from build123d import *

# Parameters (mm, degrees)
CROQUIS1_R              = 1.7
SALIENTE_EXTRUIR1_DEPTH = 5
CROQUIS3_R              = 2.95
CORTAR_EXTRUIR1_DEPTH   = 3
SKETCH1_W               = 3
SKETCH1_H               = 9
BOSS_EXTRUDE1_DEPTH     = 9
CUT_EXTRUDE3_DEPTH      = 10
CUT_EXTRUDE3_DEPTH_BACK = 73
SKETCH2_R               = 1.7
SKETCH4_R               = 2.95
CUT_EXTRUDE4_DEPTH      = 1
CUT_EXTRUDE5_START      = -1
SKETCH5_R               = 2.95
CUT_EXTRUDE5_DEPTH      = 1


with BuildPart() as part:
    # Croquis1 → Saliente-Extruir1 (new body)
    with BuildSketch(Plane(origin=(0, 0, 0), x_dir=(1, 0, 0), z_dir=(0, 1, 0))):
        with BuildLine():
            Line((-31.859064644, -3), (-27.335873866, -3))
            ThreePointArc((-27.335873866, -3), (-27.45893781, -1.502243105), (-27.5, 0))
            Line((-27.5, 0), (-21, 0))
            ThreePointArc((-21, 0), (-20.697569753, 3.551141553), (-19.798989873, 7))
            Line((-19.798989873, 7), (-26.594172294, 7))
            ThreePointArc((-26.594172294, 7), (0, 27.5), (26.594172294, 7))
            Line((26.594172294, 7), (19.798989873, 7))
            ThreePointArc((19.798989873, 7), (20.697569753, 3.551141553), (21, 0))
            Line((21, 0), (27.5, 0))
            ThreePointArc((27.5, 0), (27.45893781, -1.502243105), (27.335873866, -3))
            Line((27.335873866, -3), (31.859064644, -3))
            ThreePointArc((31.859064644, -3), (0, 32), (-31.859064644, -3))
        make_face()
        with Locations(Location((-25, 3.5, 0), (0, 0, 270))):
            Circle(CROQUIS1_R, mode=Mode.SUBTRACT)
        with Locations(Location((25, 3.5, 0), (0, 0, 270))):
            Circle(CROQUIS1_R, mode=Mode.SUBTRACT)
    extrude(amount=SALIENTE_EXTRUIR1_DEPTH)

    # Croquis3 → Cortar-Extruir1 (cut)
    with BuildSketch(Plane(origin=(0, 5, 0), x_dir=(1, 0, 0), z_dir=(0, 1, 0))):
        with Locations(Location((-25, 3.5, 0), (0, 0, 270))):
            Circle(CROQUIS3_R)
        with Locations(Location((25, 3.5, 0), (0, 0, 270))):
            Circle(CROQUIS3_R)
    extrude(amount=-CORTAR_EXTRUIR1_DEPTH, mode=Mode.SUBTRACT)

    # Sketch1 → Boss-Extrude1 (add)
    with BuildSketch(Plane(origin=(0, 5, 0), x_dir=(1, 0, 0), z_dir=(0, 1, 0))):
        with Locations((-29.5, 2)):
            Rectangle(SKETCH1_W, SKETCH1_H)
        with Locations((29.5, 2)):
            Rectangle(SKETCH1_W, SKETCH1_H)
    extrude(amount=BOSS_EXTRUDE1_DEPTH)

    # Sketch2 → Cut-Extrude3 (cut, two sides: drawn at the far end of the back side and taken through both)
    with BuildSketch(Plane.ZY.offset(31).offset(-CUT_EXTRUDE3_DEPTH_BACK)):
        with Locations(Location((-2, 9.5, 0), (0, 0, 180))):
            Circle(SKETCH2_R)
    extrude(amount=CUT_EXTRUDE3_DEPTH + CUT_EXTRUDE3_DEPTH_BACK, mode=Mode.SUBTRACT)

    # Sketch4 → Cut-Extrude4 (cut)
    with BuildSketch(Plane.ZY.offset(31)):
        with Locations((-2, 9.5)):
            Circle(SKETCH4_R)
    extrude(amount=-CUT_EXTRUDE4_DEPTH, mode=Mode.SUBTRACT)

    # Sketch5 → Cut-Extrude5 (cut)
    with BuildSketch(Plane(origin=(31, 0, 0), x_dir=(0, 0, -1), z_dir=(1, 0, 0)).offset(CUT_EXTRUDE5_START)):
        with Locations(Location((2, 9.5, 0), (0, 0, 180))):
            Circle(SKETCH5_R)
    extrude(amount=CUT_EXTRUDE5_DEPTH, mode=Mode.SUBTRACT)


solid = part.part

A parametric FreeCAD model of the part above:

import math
import FreeCAD as App
import Part
import Sketcher
from FreeCAD import Vector
Q = App.Units.Quantity


def add_polygon(sketch, points):
    """Adds a closed chain of lines whose ends are joined by coincident constraints."""
    first, n = sketch.GeometryCount, len(points)
    for a, b in zip(points, points[1:] + points[:1]):
        sketch.addGeometry(Part.LineSegment(App.Vector(*a, 0), App.Vector(*b, 0)), False)
    for i in range(n):
        sketch.addConstraint(Sketcher.Constraint("Coincident", first + i, 2, first + (i + 1) % n, 1))

doc = App.newDocument("Part")
body = doc.addObject("PartDesign::Body", "Body")

# Sketch on XZ plane
sketch1 = doc.addObject("Sketcher::SketchObject", "Sketch")
body.addObject(sketch1)
sketch1.AttachmentSupport = (doc.XZ_Plane, [""])
sketch1.MapMode = "FlatFace"
sketch1.addGeometry([
    Part.LineSegment(Vector(-31.9, 3, 0), Vector(-27.3, 3, 0)),  # 0
    Part.ArcOfCircle(Part.Circle(Vector(0, 0, 0), Vector(0, 0, 1), 27.5), math.radians(173.74), math.radians(180)),  # 1
    Part.LineSegment(Vector(-27.5, 0, 0), Vector(-21, 0, 0)),  # 2
    Part.ArcOfCircle(Part.Circle(Vector(0, 0, 0), Vector(0, 0, 1), 21), math.radians(180), math.radians(199.47)),  # 3
    Part.LineSegment(Vector(-19.8, -7, 0), Vector(-26.6, -7, 0)),  # 4
    Part.ArcOfCircle(Part.Circle(Vector(0, 0, 0), Vector(0, 0, 1), 27.5), math.radians(-165), math.radians(-15)),  # 5
    Part.LineSegment(Vector(26.6, -7, 0), Vector(19.8, -7, 0)),  # 6
    Part.ArcOfCircle(Part.Circle(Vector(0, 0, 0), Vector(0, 0, 1), 21), math.radians(-19.47), math.radians(0)),  # 7
    Part.LineSegment(Vector(21, 0, 0), Vector(27.5, 0, 0)),  # 8
    Part.ArcOfCircle(Part.Circle(Vector(0, 0, 0), Vector(0, 0, 1), 27.5), math.radians(0), math.radians(6.26)),  # 9
    Part.LineSegment(Vector(27.3, 3, 0), Vector(31.9, 3, 0)),  # 10
    Part.ArcOfCircle(Part.Circle(Vector(0, 0, 0), Vector(0, 0, 1), 32), math.radians(175), math.radians(365)),  # 11
    Part.Circle(Vector(-25, -3.5, 0), Vector(0, 0, 1), 1.7),  # 12
    Part.Circle(Vector(25, -3.5, 0), Vector(0, 0, 1), 1.7),  # 13
], False)
sketch1.addConstraint([
    Sketcher.Constraint("Coincident", 0, 2, 1, 1),
    Sketcher.Constraint("Coincident", 1, 2, 2, 1),
    Sketcher.Constraint("Coincident", 2, 2, 3, 1),
    Sketcher.Constraint("Coincident", 3, 2, 4, 1),
    Sketcher.Constraint("Coincident", 4, 2, 5, 1),
    Sketcher.Constraint("Coincident", 5, 2, 6, 1),
    Sketcher.Constraint("Coincident", 6, 2, 7, 1),
    Sketcher.Constraint("Coincident", 7, 2, 8, 1),
    Sketcher.Constraint("Coincident", 8, 2, 9, 1),
    Sketcher.Constraint("Coincident", 9, 2, 10, 1),
    Sketcher.Constraint("Coincident", 10, 2, 11, 2),
    Sketcher.Constraint("Coincident", 11, 1, 0, 1),
    Sketcher.Constraint("Horizontal", 0),
    Sketcher.Constraint("Horizontal", 2),
    Sketcher.Constraint("Horizontal", 4),
    Sketcher.Constraint("Horizontal", 6),
    Sketcher.Constraint("Horizontal", 8),
    Sketcher.Constraint("Horizontal", 10),
    Sketcher.Constraint("Coincident", 1, 3, -1, 1),
    Sketcher.Constraint("Coincident", 3, 3, -1, 1),
    Sketcher.Constraint("Coincident", 5, 3, -1, 1),
    Sketcher.Constraint("Coincident", 7, 3, -1, 1),
    Sketcher.Constraint("Coincident", 9, 3, -1, 1),
    Sketcher.Constraint("Coincident", 11, 3, -1, 1),
    Sketcher.Constraint("Equal", 1, 5),
    Sketcher.Constraint("Equal", 3, 7),
    Sketcher.Constraint("Equal", 5, 9),
    Sketcher.Constraint("Equal", 12, 13),
    Sketcher.Constraint("Symmetric", 12, 3, 13, 3, -2),
    Sketcher.Constraint("PointOnObject", 1, 2, -1),
    Sketcher.Constraint("PointOnObject", 7, 2, -1),
    Sketcher.Constraint("Horizontal", 4, 2, 5, 2),
    Sketcher.Constraint("Horizontal", 0, 2, 9, 2),
    Sketcher.Constraint("Radius", 3, Q("21 mm")),
    Sketcher.Constraint("Radius", 11, Q("32 mm")),
    Sketcher.Constraint("Diameter", 12, Q("3.4 mm")),
    Sketcher.Constraint("Radius", 1, Q("27.5 mm")),
    Sketcher.Constraint("DistanceX", 12, 3, -1, 1, Q("25 mm")),
    Sketcher.Constraint("DistanceY", -1, 1, 0, 2, Q("3 mm")),
    Sketcher.Constraint("DistanceY", 3, 2, -1, 1, Q("7 mm")),
    Sketcher.Constraint("DistanceY", 12, 3, -1, 1, Q("3.5 mm")),
])
pad1 = doc.addObject("PartDesign::Pad", "Pad")
body.addObject(pad1)
pad1.Profile = sketch1
pad1.Length = 5
pad1.Reversed = True

# Sketch on XZ plane
sketch2 = doc.addObject("Sketcher::SketchObject", "Sketch001")
body.addObject(sketch2)
sketch2.AttachmentSupport = (doc.XZ_Plane, [""])
sketch2.MapMode = "FlatFace"
sketch2.AttachmentOffset = App.Placement(Vector(0, 0, -5), App.Rotation())
sketch2.addGeometry([
    Part.Circle(Vector(-25, -3.5, 0), Vector(0, 0, 1), 3),
    Part.Circle(Vector(25, -3.5, 0), Vector(0, 0, 1), 3),
], False)
sketch2.addConstraint([
    Sketcher.Constraint("Equal", 0, 1),
    Sketcher.Constraint("Symmetric", 0, 3, 1, 3, -2),
    Sketcher.Constraint("Diameter", 0, Q("5.9 mm")),
    Sketcher.Constraint("DistanceX", 0, 3, -1, 1, Q("25 mm")),
    Sketcher.Constraint("DistanceY", 0, 3, -1, 1, Q("3.5 mm")),
])
pocket1 = doc.addObject("PartDesign::Pocket", "Pocket")
body.addObject(pocket1)
pocket1.Profile = sketch2
pocket1.Length = 3
pocket1.Reversed = True

# Sketch on XZ plane
sketch3 = doc.addObject("Sketcher::SketchObject", "Sketch002")
body.addObject(sketch3)
sketch3.AttachmentSupport = (doc.XZ_Plane, [""])
sketch3.MapMode = "FlatFace"
sketch3.AttachmentOffset = App.Placement(Vector(0, 0, -5), App.Rotation())
add_polygon(sketch3, [(-31, -6.5), (-31, 2.5), (-28, 2.5), (-28, -6.5)])  # lines 0-3
add_polygon(sketch3, [(28, -6.5), (28, 2.5), (31, 2.5), (31, -6.5)])  # lines 4-7
sketch3.addConstraint([
    Sketcher.Constraint("Vertical", 0),
    Sketcher.Constraint("Horizontal", 1),
    Sketcher.Constraint("Vertical", 2),
    Sketcher.Constraint("Horizontal", 3),
    Sketcher.Constraint("Vertical", 4),
    Sketcher.Constraint("Horizontal", 5),
    Sketcher.Constraint("Vertical", 6),
    Sketcher.Constraint("Horizontal", 7),
    Sketcher.Constraint("Symmetric", 1, 2, 4, 2, -2),
    Sketcher.Constraint("Symmetric", 3, 2, 6, 2, -2),
    Sketcher.Constraint("DistanceX", 1, 1, 1, 2, Q("3 mm")),
    Sketcher.Constraint("DistanceY", 0, 1, 0, 2, Q("9 mm")),
    Sketcher.Constraint("DistanceX", 0, 2, -1, 1, Q("31 mm")),
    Sketcher.Constraint("DistanceY", -1, 1, 0, 2, Q("2.5 mm")),
])
pad2 = doc.addObject("PartDesign::Pad", "Pad001")
body.addObject(pad2)
pad2.Profile = sketch3
pad2.Length = 9
pad2.Reversed = True

# Sketch on YZ plane
sketch4 = doc.addObject("Sketcher::SketchObject", "Sketch003")
body.addObject(sketch4)
sketch4.AttachmentSupport = (doc.YZ_Plane, [""])
sketch4.MapMode = "FlatFace"
sketch4.AttachmentOffset = App.Placement(Vector(0, 0, -31), App.Rotation())
sketch4.addGeometry(Part.Circle(Vector(9.5, -2, 0), Vector(0, 0, 1), 1.7), False)
sketch4.addConstraint([
    Sketcher.Constraint("Diameter", 0, Q("3.4 mm")),
    Sketcher.Constraint("DistanceY", 0, 3, -1, 1, Q("2 mm")),
    Sketcher.Constraint("DistanceX", -1, 1, 0, 3, Q("9.5 mm")),
])
pocket2 = doc.addObject("PartDesign::Pocket", "Pocket001")
body.addObject(pocket2)
pocket2.Profile = sketch4
pocket2.Type = "ThroughAll"
pocket2.Midplane = True

# Sketch on YZ plane
sketch5 = doc.addObject("Sketcher::SketchObject", "Sketch004")
body.addObject(sketch5)
sketch5.AttachmentSupport = (doc.YZ_Plane, [""])
sketch5.MapMode = "FlatFace"
sketch5.AttachmentOffset = App.Placement(Vector(0, 0, -31), App.Rotation())
sketch5.addGeometry(Part.Circle(Vector(9.5, -2, 0), Vector(0, 0, 1), 3), False)
sketch5.addConstraint([
    Sketcher.Constraint("Diameter", 0, Q("5.9 mm")),
    Sketcher.Constraint("DistanceY", 0, 3, -1, 1, Q("2 mm")),
    Sketcher.Constraint("DistanceX", -1, 1, 0, 3, Q("9.5 mm")),
])
pocket3 = doc.addObject("PartDesign::Pocket", "Pocket002")
body.addObject(pocket3)
pocket3.Profile = sketch5
pocket3.Length = 1
pocket3.Reversed = True

# Sketch on YZ plane
sketch6 = doc.addObject("Sketcher::SketchObject", "Sketch005")
body.addObject(sketch6)
sketch6.AttachmentSupport = (doc.YZ_Plane, [""])
sketch6.MapMode = "FlatFace"
sketch6.AttachmentOffset = App.Placement(Vector(0, 0, 30), App.Rotation())
sketch6.addGeometry(Part.Circle(Vector(9.5, -2, 0), Vector(0, 0, 1), 3), False)
sketch6.addConstraint([
    Sketcher.Constraint("Diameter", 0, Q("5.9 mm")),
    Sketcher.Constraint("DistanceY", 0, 3, -1, 1, Q("2 mm")),
    Sketcher.Constraint("DistanceX", -1, 1, 0, 3, Q("9.5 mm")),
])
pocket4 = doc.addObject("PartDesign::Pocket", "Pocket003")
body.addObject(pocket4)
pocket4.Profile = sketch6
pocket4.Length = 1
pocket4.Reversed = True

doc.recompute()
